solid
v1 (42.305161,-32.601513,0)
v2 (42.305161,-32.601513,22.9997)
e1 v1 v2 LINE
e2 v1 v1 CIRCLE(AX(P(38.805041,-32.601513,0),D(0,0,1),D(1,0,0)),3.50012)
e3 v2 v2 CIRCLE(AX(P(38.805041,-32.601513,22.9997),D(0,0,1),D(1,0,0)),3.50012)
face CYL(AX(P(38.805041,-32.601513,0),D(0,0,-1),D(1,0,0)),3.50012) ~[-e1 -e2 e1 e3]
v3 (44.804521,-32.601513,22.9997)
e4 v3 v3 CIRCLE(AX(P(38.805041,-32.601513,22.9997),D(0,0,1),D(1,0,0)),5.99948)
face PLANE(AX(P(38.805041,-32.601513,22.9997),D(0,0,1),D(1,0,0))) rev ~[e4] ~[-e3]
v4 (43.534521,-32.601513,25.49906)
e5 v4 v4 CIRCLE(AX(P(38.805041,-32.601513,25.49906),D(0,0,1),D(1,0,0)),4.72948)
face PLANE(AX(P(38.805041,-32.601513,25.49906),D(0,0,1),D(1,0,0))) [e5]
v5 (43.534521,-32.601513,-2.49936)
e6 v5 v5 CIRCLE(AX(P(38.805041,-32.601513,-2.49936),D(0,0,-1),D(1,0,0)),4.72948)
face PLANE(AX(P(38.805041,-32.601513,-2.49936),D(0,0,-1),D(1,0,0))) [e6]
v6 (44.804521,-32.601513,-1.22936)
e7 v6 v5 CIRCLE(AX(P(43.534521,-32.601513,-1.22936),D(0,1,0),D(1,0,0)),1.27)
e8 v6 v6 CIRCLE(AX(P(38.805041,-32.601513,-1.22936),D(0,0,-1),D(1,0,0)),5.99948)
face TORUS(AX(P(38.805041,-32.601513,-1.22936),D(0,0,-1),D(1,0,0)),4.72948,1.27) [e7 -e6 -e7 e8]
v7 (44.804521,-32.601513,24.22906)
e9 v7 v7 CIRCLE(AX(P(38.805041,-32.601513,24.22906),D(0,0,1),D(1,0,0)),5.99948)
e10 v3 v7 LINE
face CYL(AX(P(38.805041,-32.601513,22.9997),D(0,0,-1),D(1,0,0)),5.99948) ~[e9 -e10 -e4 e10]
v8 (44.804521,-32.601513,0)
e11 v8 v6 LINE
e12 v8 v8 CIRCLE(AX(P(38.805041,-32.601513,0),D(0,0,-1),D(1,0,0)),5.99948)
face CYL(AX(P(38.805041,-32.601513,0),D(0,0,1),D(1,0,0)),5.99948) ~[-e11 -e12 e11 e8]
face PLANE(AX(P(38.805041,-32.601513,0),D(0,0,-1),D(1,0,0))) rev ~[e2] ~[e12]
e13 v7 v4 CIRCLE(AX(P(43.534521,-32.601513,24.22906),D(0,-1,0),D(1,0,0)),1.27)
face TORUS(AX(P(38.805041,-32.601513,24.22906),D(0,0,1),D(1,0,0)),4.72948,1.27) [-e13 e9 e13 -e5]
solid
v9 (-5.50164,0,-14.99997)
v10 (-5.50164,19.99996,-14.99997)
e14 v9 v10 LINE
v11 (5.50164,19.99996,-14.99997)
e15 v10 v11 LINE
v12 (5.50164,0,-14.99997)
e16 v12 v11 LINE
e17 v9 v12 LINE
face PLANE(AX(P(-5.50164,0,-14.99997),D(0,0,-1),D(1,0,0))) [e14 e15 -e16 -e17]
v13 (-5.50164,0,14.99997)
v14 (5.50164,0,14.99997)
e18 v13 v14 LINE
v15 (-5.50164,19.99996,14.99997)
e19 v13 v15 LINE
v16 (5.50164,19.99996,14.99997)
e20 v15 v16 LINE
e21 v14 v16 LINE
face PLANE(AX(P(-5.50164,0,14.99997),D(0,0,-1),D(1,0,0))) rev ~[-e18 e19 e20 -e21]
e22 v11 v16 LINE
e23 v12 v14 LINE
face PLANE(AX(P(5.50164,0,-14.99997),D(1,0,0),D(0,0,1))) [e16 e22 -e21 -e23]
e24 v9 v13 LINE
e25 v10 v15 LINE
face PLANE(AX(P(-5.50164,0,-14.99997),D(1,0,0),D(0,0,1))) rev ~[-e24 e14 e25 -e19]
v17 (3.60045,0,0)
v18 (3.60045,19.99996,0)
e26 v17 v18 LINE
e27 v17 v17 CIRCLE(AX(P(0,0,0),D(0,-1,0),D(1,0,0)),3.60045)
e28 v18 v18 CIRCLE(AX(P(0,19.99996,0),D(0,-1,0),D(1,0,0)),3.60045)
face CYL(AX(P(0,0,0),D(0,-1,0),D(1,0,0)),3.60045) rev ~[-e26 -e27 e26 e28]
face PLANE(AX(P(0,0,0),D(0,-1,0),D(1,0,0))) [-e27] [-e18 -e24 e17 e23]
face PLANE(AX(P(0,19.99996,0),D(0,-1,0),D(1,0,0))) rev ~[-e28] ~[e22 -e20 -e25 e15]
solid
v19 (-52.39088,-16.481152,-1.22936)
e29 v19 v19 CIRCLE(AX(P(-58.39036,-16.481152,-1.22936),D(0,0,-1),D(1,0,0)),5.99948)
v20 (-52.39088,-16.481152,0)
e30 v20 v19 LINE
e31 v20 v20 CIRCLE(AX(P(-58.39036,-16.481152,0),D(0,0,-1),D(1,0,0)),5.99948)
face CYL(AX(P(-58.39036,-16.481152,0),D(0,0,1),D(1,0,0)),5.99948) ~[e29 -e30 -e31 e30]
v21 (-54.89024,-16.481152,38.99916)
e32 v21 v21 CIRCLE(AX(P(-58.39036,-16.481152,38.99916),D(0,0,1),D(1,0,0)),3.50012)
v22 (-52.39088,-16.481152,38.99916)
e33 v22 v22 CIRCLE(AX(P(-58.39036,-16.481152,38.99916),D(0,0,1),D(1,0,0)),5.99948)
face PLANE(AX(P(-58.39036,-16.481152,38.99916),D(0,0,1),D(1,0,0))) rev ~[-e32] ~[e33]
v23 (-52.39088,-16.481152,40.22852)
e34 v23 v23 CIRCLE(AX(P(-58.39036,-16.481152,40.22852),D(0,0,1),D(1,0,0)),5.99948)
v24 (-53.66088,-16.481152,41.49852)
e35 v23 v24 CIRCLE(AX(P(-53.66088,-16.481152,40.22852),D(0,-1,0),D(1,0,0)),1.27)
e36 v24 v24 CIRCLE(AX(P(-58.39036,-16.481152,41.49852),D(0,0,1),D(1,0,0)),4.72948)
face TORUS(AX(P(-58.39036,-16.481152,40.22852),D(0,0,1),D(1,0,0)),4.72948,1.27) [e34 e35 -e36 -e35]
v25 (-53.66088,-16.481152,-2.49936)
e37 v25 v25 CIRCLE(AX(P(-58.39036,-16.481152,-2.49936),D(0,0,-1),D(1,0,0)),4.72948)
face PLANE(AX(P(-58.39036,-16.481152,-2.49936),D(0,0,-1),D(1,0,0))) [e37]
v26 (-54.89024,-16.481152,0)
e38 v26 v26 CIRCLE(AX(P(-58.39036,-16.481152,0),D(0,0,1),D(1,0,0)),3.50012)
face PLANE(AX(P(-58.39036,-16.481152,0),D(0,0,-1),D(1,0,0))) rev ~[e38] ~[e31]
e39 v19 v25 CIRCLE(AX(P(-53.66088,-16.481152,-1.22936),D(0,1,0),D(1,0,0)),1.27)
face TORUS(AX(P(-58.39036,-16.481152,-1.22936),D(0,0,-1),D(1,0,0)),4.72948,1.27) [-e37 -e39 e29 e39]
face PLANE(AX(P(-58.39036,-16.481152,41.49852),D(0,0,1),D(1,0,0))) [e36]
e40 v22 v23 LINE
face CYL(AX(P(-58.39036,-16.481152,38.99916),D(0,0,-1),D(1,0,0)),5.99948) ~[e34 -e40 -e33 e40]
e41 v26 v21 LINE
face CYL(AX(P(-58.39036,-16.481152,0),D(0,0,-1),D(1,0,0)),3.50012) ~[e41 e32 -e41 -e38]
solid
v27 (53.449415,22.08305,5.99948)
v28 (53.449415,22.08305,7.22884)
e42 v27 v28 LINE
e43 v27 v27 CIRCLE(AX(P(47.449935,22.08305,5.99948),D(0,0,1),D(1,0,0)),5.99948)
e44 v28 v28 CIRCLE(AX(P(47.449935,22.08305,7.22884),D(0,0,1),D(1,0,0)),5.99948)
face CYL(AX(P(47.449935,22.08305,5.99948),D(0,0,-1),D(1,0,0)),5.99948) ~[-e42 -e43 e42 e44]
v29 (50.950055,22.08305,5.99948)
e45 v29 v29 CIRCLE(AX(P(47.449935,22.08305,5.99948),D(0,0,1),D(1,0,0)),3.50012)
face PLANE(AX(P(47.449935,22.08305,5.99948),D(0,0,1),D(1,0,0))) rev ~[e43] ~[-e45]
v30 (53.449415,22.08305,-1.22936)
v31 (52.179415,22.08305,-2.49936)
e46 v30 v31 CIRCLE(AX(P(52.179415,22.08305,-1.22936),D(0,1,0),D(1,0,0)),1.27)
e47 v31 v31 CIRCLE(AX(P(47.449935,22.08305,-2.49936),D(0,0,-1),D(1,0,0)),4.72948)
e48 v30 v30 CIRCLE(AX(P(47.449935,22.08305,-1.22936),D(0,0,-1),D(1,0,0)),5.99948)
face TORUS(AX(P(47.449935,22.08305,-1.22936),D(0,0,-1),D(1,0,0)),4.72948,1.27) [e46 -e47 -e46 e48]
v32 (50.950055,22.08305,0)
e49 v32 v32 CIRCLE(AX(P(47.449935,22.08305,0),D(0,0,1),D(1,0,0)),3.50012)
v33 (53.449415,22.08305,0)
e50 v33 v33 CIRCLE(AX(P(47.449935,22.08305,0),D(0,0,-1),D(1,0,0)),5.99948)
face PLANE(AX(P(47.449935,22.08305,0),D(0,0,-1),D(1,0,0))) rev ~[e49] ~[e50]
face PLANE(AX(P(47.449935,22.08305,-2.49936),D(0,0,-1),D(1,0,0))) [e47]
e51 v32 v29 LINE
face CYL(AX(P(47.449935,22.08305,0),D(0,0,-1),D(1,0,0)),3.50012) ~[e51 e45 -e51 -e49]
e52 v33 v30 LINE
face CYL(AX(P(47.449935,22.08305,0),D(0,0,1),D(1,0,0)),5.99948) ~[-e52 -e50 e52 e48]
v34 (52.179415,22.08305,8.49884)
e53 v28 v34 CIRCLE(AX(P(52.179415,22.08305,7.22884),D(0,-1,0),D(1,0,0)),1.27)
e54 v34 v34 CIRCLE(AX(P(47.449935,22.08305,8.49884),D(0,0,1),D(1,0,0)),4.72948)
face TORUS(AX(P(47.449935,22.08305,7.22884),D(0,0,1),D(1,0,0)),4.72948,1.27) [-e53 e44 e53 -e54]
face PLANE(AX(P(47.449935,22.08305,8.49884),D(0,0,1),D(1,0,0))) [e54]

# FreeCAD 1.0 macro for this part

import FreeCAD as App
import Part
import Sketcher
Q = App.Units.Quantity


def edges_at(feature, points):
    """Names of the edges that pass closest to the given points."""
    edges = feature.Shape.Edges
    near = lambda p: min(range(len(edges)), key=lambda i: edges[i].distToShape(Part.Vertex(*p))[0])
    return sorted({f"Edge{near(p) + 1}" for p in points})

doc = App.newDocument("Part")
params = doc.addObject("Spreadsheet::Sheet", "Params")
for row, (alias, value) in enumerate([
    ("pad1_length", "0.7874 in"),
    ("pocket1_length", "1 in"),
    ("pad2_length", "1.5354 in"),
    ("pad3_length", "0.0984 in"),
    ("pad4_length", "0.0984 in"),
    ("fillet_radius", "0.05 in"),
    ("pad5_length", "0.9055 in"),
    ("pad6_length", "0.0984 in"),
    ("pad7_length", "0.0984 in"),
    ("fillet2_radius", "0.05 in"),
    ("pad8_length", "0.2362 in"),
    ("pad9_length", "0.0984 in"),
    ("pad10_length", "0.0984 in"),
    ("fillet3_radius", "0.05 in"),
], start=1):
    params.set(f"A{row}", alias)
    params.set(f"B{row}", "=" + value)
    params.setAlias(f"B{row}", alias)

body = doc.addObject("PartDesign::Body", "Body")

# Sketch on XZ plane
sketch1 = doc.addObject("Sketcher::SketchObject", "Sketch")
body.addObject(sketch1)
sketch1.AttachmentSupport = (doc.XZ_Plane, [""])
sketch1.MapMode = "FlatFace"
sketch1.addGeometry([
    Part.LineSegment(App.Vector(-6, 15, 0), App.Vector(-6, -15, 0)),
    Part.LineSegment(App.Vector(-6, -15, 0), App.Vector(6, -15, 0)),
    Part.LineSegment(App.Vector(6, -15, 0), App.Vector(6, 15, 0)),
    Part.LineSegment(App.Vector(6, 15, 0), App.Vector(-6, 15, 0)),
], False)
sketch1.addConstraint([
    Sketcher.Constraint("Coincident", 0, 2, 1, 1),
    Sketcher.Constraint("Coincident", 1, 2, 2, 1),
    Sketcher.Constraint("Coincident", 2, 2, 3, 1),
    Sketcher.Constraint("Coincident", 3, 2, 0, 1),
    Sketcher.Constraint("Vertical", 0),
    Sketcher.Constraint("Horizontal", 1),
    Sketcher.Constraint("Vertical", 2),
    Sketcher.Constraint("Horizontal", 3),
    Sketcher.Constraint("Symmetric", 0, 2, 2, 2, -1, 1),
    Sketcher.Constraint("DistanceX", 1, 1, 1, 2, Q("0.4332 in")),
    Sketcher.Constraint("DistanceY", 0, 2, 0, 1, Q("1.1811 in")),
])
pad1 = doc.addObject("PartDesign::Pad", "Pad")
body.addObject(pad1)
pad1.Profile = sketch1
pad1.setExpression("Length", "Params.pad1_length")
pad1.Reversed = True

# Sketch on XZ plane
sketch2 = doc.addObject("Sketcher::SketchObject", "Sketch001")
body.addObject(sketch2)
sketch2.AttachmentSupport = (doc.XZ_Plane, [""])
sketch2.MapMode = "FlatFace"
sketch2.addGeometry(Part.Circle(App.Vector(0, 0, 0), App.Vector(0, 0, 1), 3.6), False)
sketch2.addConstraint([
    Sketcher.Constraint("Coincident", 0, 3, -1, 1),
    Sketcher.Constraint("Diameter", 0, Q("0.2835 in")),
])
pocket1 = doc.addObject("PartDesign::Pocket", "Pocket")
body.addObject(pocket1)
pocket1.Profile = sketch2
pocket1.setExpression("Length", "Params.pocket1_length")
body2 = doc.addObject("PartDesign::Body", "Body001")

# Sketch on XY plane
sketch3 = doc.addObject("Sketcher::SketchObject", "Sketch002")
body2.addObject(sketch3)
sketch3.AttachmentSupport = (doc.getObject("XY_Plane001"), [""])
sketch3.MapMode = "FlatFace"
sketch3.addGeometry(Part.Circle(App.Vector(-58.4, -16.5, 0), App.Vector(0, 0, 1), 3.5), False)
sketch3.addConstraint([
    Sketcher.Constraint("Diameter", 0, Q("0.2756 in")),
    Sketcher.Constraint("DistanceX", 0, 3, -1, 1, Q("58.39036 mm")),
    Sketcher.Constraint("DistanceY", 0, 3, -1, 1, Q("16.481152 mm")),
])
pad2 = doc.addObject("PartDesign::Pad", "Pad001")
body2.addObject(pad2)
pad2.Profile = sketch3
pad2.setExpression("Length", "Params.pad2_length")

# Sketch on XY plane
sketch4 = doc.addObject("Sketcher::SketchObject", "Sketch003")
body2.addObject(sketch4)
sketch4.AttachmentSupport = (doc.getObject("XY_Plane001"), [""])
sketch4.MapMode = "FlatFace"
sketch4.AttachmentOffset = App.Placement(App.Vector(0, 0, 1.5354 * 25.4), App.Rotation())
sketch4.addGeometry(Part.Circle(App.Vector(-58, -16, 0), App.Vector(0, 0, 1), 6), False)
sketch4.addConstraint([
    Sketcher.Constraint("Diameter", 0, Q("0.4724 in")),
    Sketcher.Constraint("DistanceX", 0, 3, -1, 1, Q("58.39036 mm")),
    Sketcher.Constraint("DistanceY", 0, 3, -1, 1, Q("16.481152 mm")),
])
pad3 = doc.addObject("PartDesign::Pad", "Pad002")
body2.addObject(pad3)
pad3.Profile = sketch4
pad3.setExpression("Length", "Params.pad3_length")

# Sketch on XY plane
sketch5 = doc.addObject("Sketcher::SketchObject", "Sketch004")
body2.addObject(sketch5)
sketch5.AttachmentSupport = (doc.getObject("XY_Plane001"), [""])
sketch5.MapMode = "FlatFace"
sketch5.addGeometry(Part.Circle(App.Vector(-58, -16, 0), App.Vector(0, 0, 1), 6), False)
sketch5.addConstraint([
    Sketcher.Constraint("Diameter", 0, Q("0.4724 in")),
    Sketcher.Constraint("DistanceX", 0, 3, -1, 1, Q("58.39036 mm")),
    Sketcher.Constraint("DistanceY", 0, 3, -1, 1, Q("16.481152 mm")),
])
pad4 = doc.addObject("PartDesign::Pad", "Pad003")
body2.addObject(pad4)
pad4.Profile = sketch5
pad4.setExpression("Length", "Params.pad4_length")
pad4.Reversed = True
doc.recompute()

fillet = doc.addObject("PartDesign::Fillet", "Fillet")
body2.addObject(fillet)
fillet.Base = (pad4, edges_at(pad4, [(-64.39, -16.481, -2.499), (-64.39, -16.481, 41.499)]))
fillet.setExpression("Radius", "Params.fillet_radius")
body3 = doc.addObject("PartDesign::Body", "Body002")

# Sketch on XY plane
sketch6 = doc.addObject("Sketcher::SketchObject", "Sketch005")
body3.addObject(sketch6)
sketch6.AttachmentSupport = (doc.getObject("XY_Plane002"), [""])
sketch6.MapMode = "FlatFace"
sketch6.addGeometry(Part.Circle(App.Vector(38.8, -32.6, 0), App.Vector(0, 0, 1), 3.5), False)
sketch6.addConstraint([
    Sketcher.Constraint("Diameter", 0, Q("0.2756 in")),
    Sketcher.Constraint("DistanceX", -1, 1, 0, 3, Q("38.805041 mm")),
    Sketcher.Constraint("DistanceY", 0, 3, -1, 1, Q("32.601513 mm")),
])
pad5 = doc.addObject("PartDesign::Pad", "Pad004")
body3.addObject(pad5)
pad5.Profile = sketch6
pad5.setExpression("Length", "Params.pad5_length")

# Sketch on XY plane
sketch7 = doc.addObject("Sketcher::SketchObject", "Sketch006")
body3.addObject(sketch7)
sketch7.AttachmentSupport = (doc.getObject("XY_Plane002"), [""])
sketch7.MapMode = "FlatFace"
sketch7.AttachmentOffset = App.Placement(App.Vector(0, 0, 0.9055 * 25.4), App.Rotation())
sketch7.addGeometry(Part.Circle(App.Vector(39, -33, 0), App.Vector(0, 0, 1), 6), False)
sketch7.addConstraint([
    Sketcher.Constraint("Diameter", 0, Q("0.4724 in")),
    Sketcher.Constraint("DistanceX", -1, 1, 0, 3, Q("38.805041 mm")),
    Sketcher.Constraint("DistanceY", 0, 3, -1, 1, Q("32.601513 mm")),
])
pad6 = doc.addObject("PartDesign::Pad", "Pad005")
body3.addObject(pad6)
pad6.Profile = sketch7
pad6.setExpression("Length", "Params.pad6_length")

# Sketch on XY plane
sketch8 = doc.addObject("Sketcher::SketchObject", "Sketch007")
body3.addObject(sketch8)
sketch8.AttachmentSupport = (doc.getObject("XY_Plane002"), [""])
sketch8.MapMode = "FlatFace"
sketch8.addGeometry(Part.Circle(App.Vector(39, -33, 0), App.Vector(0, 0, 1), 6), False)
sketch8.addConstraint([
    Sketcher.Constraint("Diameter", 0, Q("0.4724 in")),
    Sketcher.Constraint("DistanceX", -1, 1, 0, 3, Q("38.805041 mm")),
    Sketcher.Constraint("DistanceY", 0, 3, -1, 1, Q("32.601513 mm")),
])
pad7 = doc.addObject("PartDesign::Pad", "Pad006")
body3.addObject(pad7)
pad7.Profile = sketch8
pad7.setExpression("Length", "Params.pad7_length")
pad7.Reversed = True
doc.recompute()

fillet2 = doc.addObject("PartDesign::Fillet", "Fillet001")
body3.addObject(fillet2)
fillet2.Base = (pad7, edges_at(pad7, [(32.806, -32.602, -2.499), (32.806, -32.602, 25.499)]))
fillet2.setExpression("Radius", "Params.fillet2_radius")
body4 = doc.addObject("PartDesign::Body", "Body003")

# Sketch on XY plane
sketch9 = doc.addObject("Sketcher::SketchObject", "Sketch008")
body4.addObject(sketch9)
sketch9.AttachmentSupport = (doc.getObject("XY_Plane003"), [""])
sketch9.MapMode = "FlatFace"
sketch9.addGeometry(Part.Circle(App.Vector(47.4, 22.1, 0), App.Vector(0, 0, 1), 3.5), False)
sketch9.addConstraint([
    Sketcher.Constraint("Diameter", 0, Q("0.2756 in")),
    Sketcher.Constraint("DistanceY", -1, 1, 0, 3, Q("22.08305 mm")),
    Sketcher.Constraint("DistanceX", -1, 1, 0, 3, Q("47.449935 mm")),
])
pad8 = doc.addObject("PartDesign::Pad", "Pad007")
body4.addObject(pad8)
pad8.Profile = sketch9
pad8.setExpression("Length", "Params.pad8_length")

# Sketch on XY plane
sketch10 = doc.addObject("Sketcher::SketchObject", "Sketch009")
body4.addObject(sketch10)
sketch10.AttachmentSupport = (doc.getObject("XY_Plane003"), [""])
sketch10.MapMode = "FlatFace"
sketch10.addGeometry(Part.Circle(App.Vector(47, 22, 0), App.Vector(0, 0, 1), 6), False)
sketch10.addConstraint([
    Sketcher.Constraint("Diameter", 0, Q("0.4724 in")),
    Sketcher.Constraint("DistanceY", -1, 1, 0, 3, Q("22.08305 mm")),
    Sketcher.Constraint("DistanceX", -1, 1, 0, 3, Q("47.449935 mm")),
])
pad9 = doc.addObject("PartDesign::Pad", "Pad008")
body4.addObject(pad9)
pad9.Profile = sketch10
pad9.setExpression("Length", "Params.pad9_length")
pad9.Reversed = True

# Sketch on XY plane
sketch11 = doc.addObject("Sketcher::SketchObject", "Sketch010")
body4.addObject(sketch11)
sketch11.AttachmentSupport = (doc.getObject("XY_Plane003"), [""])
sketch11.MapMode = "FlatFace"
sketch11.AttachmentOffset = App.Placement(App.Vector(0, 0, 0.2362 * 25.4), App.Rotation())
sketch11.addGeometry(Part.Circle(App.Vector(47, 22, 0), App.Vector(0, 0, 1), 6), False)
sketch11.addConstraint([
    Sketcher.Constraint("Diameter", 0, Q("0.4724 in")),
    Sketcher.Constraint("DistanceY", -1, 1, 0, 3, Q("22.08305 mm")),
    Sketcher.Constraint("DistanceX", -1, 1, 0, 3, Q("47.449935 mm")),
])
pad10 = doc.addObject("PartDesign::Pad", "Pad009")
body4.addObject(pad10)
pad10.Profile = sketch11
pad10.setExpression("Length", "Params.pad10_length")
doc.recompute()

fillet3 = doc.addObject("PartDesign::Fillet", "Fillet002")
body4.addObject(fillet3)
fillet3.Base = (pad10, edges_at(pad10, [(41.45, 22.083, 8.499), (41.45, 22.083, -2.499)]))
fillet3.setExpression("Radius", "Params.fillet3_radius")

doc.recompute()
